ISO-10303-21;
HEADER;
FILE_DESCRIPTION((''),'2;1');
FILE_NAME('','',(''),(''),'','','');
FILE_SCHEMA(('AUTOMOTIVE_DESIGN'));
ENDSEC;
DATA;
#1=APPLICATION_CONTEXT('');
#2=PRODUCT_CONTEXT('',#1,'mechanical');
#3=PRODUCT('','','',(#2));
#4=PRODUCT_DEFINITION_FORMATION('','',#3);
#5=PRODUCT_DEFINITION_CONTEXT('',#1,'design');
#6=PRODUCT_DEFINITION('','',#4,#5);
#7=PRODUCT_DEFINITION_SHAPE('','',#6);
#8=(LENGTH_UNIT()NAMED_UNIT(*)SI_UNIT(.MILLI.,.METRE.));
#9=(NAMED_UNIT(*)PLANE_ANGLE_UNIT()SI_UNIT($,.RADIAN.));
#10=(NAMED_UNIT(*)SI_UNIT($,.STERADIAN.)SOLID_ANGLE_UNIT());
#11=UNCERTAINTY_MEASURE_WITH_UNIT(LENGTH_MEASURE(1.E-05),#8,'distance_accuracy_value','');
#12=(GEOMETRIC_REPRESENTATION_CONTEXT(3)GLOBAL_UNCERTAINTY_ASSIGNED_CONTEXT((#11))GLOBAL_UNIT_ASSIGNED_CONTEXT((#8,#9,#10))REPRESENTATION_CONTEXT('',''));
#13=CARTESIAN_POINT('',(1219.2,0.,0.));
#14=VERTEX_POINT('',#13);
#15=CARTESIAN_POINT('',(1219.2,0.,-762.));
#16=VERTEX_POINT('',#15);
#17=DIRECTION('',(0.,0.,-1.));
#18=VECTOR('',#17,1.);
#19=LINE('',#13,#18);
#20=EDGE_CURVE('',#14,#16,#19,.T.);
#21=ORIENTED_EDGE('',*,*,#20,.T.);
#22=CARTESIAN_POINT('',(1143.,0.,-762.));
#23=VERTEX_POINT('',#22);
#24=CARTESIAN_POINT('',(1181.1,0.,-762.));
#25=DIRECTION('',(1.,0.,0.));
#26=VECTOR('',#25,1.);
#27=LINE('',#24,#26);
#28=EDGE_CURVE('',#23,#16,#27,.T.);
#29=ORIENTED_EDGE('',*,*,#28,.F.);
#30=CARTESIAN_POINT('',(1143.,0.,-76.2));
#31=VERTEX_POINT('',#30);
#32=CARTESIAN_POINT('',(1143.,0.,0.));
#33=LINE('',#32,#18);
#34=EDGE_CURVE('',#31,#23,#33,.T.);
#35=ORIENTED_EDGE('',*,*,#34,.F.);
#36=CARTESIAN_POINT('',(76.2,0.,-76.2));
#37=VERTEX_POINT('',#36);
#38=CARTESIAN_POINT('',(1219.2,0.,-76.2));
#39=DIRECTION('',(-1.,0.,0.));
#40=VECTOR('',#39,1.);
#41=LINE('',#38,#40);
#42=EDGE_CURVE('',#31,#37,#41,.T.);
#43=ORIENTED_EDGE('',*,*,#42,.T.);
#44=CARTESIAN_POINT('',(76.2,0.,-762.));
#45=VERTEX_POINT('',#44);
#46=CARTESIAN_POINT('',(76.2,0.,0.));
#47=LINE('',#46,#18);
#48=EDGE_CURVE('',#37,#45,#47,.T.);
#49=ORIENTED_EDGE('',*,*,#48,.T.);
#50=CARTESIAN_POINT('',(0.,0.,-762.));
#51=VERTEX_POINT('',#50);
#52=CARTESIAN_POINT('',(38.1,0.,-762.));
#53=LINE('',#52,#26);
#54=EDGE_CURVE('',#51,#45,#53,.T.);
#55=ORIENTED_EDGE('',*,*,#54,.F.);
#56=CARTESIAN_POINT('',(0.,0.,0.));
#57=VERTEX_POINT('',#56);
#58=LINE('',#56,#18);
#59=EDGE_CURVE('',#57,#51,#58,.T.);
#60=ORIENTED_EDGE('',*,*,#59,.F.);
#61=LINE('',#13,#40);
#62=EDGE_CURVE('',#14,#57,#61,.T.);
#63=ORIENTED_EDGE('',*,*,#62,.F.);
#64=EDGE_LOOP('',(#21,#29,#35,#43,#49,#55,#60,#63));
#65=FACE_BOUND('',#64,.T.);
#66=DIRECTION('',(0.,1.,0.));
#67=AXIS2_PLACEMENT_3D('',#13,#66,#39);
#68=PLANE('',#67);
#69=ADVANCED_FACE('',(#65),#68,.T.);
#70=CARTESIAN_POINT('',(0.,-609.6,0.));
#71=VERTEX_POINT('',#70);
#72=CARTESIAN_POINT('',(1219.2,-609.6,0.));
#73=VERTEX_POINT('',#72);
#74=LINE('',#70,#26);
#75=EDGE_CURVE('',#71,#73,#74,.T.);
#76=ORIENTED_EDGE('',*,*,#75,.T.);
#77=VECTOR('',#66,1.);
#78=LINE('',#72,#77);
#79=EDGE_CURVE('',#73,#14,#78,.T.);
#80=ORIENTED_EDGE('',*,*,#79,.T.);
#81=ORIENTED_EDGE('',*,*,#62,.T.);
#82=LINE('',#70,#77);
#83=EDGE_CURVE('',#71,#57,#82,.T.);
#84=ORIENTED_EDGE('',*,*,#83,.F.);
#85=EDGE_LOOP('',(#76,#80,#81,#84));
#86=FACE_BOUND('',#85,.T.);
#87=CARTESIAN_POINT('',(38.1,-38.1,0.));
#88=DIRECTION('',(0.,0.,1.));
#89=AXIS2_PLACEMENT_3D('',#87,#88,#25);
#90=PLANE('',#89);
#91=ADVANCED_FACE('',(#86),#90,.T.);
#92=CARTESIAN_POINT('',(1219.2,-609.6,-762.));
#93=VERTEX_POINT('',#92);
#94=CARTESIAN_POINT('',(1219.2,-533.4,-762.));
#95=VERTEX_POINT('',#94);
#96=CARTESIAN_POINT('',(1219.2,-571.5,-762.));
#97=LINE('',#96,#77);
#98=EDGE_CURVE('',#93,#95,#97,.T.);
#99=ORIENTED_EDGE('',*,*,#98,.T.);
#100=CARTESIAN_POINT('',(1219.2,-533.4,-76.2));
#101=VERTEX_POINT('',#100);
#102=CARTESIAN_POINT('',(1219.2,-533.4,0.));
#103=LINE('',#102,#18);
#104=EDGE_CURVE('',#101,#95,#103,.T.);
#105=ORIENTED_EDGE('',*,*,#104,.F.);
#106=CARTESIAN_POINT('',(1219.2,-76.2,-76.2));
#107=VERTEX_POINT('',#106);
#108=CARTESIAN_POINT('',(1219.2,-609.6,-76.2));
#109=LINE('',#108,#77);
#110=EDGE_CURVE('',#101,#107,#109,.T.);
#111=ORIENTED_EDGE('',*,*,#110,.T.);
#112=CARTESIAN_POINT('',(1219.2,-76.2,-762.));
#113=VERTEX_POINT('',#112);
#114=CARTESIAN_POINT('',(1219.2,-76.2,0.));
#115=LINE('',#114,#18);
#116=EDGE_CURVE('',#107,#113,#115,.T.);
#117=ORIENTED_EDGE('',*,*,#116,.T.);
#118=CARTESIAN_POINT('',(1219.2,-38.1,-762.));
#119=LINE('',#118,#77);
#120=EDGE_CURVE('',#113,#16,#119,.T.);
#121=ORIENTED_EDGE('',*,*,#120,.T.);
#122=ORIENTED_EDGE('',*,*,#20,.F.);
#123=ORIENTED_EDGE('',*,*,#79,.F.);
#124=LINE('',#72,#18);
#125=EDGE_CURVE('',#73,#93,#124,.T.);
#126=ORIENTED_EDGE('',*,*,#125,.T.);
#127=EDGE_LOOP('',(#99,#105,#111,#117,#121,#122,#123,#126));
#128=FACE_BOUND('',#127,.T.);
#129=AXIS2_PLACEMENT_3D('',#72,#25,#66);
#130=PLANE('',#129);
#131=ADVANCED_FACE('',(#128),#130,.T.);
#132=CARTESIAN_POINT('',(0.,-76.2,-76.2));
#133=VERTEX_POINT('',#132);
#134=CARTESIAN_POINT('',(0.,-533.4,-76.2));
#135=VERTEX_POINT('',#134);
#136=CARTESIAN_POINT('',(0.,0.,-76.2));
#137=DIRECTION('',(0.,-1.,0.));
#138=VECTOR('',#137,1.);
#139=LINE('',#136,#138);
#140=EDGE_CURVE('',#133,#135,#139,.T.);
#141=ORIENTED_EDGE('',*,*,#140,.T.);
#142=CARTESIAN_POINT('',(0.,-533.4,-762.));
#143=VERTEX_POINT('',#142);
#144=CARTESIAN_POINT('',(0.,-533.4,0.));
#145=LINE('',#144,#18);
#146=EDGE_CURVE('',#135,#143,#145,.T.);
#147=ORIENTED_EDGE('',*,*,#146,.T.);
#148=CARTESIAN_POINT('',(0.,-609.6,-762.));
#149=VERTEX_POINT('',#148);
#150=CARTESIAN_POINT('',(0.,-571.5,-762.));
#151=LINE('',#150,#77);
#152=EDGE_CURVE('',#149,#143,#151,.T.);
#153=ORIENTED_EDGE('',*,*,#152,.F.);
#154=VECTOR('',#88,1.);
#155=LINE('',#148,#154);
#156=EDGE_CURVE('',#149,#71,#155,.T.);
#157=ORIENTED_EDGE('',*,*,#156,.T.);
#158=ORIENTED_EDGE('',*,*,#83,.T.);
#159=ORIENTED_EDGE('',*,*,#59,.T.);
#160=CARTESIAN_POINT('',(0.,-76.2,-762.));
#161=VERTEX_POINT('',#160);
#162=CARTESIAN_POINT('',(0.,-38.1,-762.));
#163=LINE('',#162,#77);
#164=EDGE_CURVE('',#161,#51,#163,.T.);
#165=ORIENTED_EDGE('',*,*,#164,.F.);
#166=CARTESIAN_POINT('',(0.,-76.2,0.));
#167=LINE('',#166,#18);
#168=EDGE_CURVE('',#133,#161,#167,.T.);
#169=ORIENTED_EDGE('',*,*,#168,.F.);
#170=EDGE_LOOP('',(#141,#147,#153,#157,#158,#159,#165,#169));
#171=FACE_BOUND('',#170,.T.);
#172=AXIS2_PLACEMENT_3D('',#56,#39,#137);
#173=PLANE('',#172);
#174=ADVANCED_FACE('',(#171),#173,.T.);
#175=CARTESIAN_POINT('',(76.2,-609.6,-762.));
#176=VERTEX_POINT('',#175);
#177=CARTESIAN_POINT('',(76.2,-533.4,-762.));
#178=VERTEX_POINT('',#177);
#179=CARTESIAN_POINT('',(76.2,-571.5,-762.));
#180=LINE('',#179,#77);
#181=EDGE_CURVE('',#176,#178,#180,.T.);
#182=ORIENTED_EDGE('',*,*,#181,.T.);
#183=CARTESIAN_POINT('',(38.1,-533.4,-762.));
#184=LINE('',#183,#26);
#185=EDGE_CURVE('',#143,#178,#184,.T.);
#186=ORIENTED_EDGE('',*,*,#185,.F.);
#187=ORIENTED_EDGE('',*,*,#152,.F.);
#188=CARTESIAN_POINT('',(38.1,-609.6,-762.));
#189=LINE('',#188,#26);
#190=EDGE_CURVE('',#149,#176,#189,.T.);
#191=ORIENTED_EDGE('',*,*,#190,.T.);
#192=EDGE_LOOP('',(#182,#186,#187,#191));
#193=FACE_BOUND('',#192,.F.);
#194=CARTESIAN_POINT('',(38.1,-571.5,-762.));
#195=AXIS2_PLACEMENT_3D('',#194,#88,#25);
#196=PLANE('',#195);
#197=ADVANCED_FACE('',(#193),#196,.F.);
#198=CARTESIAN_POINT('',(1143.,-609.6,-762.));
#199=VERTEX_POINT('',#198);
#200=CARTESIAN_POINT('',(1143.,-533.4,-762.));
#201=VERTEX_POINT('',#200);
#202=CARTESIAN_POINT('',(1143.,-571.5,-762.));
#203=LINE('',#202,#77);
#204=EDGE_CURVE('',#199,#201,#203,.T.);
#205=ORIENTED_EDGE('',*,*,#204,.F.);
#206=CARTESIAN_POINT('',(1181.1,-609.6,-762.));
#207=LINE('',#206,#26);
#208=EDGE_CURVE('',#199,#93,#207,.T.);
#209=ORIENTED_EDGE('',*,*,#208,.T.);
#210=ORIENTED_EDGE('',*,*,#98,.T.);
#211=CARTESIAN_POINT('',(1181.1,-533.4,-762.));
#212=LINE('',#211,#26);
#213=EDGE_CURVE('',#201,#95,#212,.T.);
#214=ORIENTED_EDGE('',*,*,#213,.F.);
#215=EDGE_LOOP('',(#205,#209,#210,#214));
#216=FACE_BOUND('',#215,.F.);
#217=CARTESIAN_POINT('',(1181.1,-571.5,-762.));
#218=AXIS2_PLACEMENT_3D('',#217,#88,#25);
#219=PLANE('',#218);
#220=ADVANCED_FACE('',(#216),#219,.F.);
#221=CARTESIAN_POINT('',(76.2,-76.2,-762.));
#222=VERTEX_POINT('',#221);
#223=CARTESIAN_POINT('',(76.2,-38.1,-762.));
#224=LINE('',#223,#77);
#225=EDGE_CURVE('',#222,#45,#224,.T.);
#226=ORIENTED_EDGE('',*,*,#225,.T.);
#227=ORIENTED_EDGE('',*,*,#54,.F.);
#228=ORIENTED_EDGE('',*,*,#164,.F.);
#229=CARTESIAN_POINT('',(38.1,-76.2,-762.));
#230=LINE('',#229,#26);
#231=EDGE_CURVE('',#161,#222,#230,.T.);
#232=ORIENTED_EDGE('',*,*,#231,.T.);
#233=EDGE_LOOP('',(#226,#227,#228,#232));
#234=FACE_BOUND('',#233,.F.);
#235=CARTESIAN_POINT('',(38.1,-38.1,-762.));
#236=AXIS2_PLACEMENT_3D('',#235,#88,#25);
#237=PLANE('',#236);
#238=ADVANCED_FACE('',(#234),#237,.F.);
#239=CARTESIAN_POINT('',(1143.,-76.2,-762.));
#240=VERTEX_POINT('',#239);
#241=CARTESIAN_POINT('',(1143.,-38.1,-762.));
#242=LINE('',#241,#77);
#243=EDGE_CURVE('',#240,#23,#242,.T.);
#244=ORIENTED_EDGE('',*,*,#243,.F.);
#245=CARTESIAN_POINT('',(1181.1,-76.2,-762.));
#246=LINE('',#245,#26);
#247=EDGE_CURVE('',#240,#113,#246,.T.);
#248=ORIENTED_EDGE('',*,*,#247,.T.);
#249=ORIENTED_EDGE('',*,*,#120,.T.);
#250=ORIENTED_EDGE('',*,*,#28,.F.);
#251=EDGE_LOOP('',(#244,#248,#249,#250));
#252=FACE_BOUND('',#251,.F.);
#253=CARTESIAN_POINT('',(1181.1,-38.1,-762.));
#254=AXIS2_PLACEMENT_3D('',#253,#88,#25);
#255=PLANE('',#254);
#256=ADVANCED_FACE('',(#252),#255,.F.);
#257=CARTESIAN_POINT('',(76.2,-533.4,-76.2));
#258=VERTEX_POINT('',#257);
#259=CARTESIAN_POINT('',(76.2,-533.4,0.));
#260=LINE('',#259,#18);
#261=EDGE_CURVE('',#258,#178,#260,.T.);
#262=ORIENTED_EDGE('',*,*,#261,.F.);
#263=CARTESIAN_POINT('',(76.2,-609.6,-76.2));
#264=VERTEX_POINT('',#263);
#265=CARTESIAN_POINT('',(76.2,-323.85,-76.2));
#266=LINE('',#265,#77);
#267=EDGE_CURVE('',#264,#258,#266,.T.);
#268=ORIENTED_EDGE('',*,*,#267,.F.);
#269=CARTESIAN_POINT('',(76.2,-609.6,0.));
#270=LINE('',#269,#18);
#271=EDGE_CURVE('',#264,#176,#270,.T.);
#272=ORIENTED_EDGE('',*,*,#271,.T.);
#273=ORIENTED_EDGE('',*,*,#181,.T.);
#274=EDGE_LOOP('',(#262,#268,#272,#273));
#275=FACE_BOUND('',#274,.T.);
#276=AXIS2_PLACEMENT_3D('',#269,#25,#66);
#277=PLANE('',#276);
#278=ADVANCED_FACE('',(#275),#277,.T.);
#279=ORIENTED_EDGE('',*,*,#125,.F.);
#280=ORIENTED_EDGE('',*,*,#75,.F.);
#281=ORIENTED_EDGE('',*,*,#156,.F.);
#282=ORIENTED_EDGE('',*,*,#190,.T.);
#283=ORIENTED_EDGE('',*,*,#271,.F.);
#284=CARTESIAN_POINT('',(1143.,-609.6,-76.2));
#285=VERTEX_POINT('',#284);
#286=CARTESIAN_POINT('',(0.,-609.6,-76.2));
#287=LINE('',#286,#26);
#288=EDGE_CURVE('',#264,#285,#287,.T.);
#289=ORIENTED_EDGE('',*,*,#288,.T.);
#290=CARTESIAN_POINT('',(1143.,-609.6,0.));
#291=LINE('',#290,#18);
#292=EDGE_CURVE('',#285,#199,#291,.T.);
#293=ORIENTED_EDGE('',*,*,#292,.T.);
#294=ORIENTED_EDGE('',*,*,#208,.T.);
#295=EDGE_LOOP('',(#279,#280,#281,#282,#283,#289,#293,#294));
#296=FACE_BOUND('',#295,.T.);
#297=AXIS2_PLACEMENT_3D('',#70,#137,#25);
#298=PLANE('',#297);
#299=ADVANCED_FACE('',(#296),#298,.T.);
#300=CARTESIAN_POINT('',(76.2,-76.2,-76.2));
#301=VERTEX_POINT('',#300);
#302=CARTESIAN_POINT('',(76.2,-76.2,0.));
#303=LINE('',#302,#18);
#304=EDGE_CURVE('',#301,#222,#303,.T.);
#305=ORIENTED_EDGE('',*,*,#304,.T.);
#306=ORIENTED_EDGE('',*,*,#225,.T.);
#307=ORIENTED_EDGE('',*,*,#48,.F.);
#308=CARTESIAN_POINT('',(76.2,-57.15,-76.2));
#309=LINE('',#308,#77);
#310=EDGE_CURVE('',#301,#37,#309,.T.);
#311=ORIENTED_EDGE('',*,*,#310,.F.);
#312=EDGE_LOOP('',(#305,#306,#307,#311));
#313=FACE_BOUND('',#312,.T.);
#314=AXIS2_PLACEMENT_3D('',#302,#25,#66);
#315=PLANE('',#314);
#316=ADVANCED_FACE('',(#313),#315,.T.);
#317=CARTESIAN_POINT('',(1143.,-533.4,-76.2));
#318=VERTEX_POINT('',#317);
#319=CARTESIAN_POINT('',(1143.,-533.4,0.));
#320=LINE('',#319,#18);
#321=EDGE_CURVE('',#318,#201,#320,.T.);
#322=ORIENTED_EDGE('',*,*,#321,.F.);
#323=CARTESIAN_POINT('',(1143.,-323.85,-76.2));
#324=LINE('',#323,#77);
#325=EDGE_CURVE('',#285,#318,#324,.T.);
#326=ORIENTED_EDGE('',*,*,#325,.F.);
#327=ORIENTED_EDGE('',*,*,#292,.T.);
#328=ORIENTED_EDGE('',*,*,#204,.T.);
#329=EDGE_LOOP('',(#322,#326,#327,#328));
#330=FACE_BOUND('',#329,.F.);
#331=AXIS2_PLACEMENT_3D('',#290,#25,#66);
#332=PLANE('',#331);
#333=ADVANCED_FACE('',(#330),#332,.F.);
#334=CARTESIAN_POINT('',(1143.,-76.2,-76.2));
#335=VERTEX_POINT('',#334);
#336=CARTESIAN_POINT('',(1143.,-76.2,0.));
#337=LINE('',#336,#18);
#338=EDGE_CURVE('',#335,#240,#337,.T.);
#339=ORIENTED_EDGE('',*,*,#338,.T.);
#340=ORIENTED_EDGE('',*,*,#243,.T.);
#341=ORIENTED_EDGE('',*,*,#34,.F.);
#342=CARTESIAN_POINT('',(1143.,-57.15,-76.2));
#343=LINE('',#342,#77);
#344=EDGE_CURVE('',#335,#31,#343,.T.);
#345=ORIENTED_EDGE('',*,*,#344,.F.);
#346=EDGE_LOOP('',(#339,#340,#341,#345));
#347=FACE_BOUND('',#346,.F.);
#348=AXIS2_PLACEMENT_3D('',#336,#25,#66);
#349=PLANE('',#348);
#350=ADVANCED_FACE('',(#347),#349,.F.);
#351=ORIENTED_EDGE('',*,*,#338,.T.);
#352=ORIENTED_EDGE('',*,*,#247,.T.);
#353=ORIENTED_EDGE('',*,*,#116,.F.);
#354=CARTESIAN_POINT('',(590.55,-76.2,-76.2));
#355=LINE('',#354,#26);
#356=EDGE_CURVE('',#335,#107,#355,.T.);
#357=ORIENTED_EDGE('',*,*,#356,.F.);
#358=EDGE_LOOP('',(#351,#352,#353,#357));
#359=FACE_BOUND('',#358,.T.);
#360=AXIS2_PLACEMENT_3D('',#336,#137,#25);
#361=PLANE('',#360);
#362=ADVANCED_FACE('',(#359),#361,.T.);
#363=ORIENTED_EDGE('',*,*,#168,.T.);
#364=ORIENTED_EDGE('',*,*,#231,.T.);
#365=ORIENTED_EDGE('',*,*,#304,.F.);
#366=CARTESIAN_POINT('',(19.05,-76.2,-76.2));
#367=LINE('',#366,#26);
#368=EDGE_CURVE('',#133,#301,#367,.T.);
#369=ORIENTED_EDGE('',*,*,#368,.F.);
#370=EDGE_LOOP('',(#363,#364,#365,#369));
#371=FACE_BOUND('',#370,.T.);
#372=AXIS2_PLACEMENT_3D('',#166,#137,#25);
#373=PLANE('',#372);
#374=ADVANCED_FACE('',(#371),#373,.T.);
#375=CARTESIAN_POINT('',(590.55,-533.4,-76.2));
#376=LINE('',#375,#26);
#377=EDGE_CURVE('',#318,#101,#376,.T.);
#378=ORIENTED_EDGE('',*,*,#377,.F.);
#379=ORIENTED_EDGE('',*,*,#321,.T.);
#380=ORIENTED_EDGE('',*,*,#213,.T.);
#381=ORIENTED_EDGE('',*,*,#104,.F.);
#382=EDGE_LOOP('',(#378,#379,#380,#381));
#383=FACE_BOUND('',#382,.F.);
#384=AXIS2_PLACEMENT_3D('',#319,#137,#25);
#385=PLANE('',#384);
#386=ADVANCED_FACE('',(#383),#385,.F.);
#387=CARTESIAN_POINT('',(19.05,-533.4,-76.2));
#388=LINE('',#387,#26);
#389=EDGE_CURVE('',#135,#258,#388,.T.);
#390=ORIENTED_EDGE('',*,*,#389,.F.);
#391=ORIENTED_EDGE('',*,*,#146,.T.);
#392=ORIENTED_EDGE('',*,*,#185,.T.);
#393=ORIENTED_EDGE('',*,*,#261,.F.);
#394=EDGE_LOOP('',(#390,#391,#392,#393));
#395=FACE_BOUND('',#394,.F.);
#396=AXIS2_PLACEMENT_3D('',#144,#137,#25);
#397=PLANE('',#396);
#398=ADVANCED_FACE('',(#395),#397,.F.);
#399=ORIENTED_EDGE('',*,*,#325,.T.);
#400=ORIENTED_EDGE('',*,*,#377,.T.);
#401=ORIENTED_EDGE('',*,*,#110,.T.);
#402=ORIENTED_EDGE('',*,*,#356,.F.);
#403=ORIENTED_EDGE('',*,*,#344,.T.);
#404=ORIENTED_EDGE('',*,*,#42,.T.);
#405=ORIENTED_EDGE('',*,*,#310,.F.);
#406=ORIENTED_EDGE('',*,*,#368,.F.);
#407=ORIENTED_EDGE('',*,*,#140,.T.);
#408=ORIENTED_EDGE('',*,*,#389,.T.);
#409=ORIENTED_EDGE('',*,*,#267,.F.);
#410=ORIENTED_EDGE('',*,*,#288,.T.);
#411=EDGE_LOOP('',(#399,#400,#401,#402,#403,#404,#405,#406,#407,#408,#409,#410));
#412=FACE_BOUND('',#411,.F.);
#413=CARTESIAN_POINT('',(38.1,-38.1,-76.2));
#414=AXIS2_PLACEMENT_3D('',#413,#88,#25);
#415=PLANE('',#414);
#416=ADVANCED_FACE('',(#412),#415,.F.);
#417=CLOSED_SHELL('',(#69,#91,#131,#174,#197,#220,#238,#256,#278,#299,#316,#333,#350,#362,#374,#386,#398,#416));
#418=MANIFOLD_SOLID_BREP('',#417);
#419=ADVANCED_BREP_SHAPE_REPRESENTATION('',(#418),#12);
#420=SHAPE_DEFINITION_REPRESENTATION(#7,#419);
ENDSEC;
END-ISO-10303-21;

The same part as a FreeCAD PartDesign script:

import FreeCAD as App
import Part
import Sketcher

V = App.Vector
Q = App.Units.Quantity

doc = App.newDocument("Part")
body = doc.addObject("PartDesign::Body", "Body")

sketch1 = body.newObject("Sketcher::SketchObject", "Sketch")
sketch1.AttachmentSupport = (doc.getObject("XY_Plane"), [""])
sketch1.MapMode = "FlatFace"
sketch1.addGeometry([
    Part.LineSegment(V(0, 0, 0), V(0, -610, 0)),
    Part.LineSegment(V(0, -610, 0), V(1219, -610, 0)),
    Part.LineSegment(V(1219, -610, 0), V(1219, 0, 0)),
    Part.LineSegment(V(1219, 0, 0), V(0, 0, 0)),
], False)
sketch1.addConstraint([
    Sketcher.Constraint("Coincident", 0, 2, 1, 1),
    Sketcher.Constraint("Coincident", 1, 2, 2, 1),
    Sketcher.Constraint("Coincident", 2, 2, 3, 1),
    Sketcher.Constraint("Coincident", 3, 2, 0, 1),
    Sketcher.Constraint("Vertical", 0),
    Sketcher.Constraint("Horizontal", 1),
    Sketcher.Constraint("Vertical", 2),
    Sketcher.Constraint("Horizontal", 3),
    Sketcher.Constraint("Coincident", 3, 2, -1, 1),
    Sketcher.Constraint("DistanceX", 1, 1, 1, 2, Q("48 in")),
    Sketcher.Constraint("DistanceY", 0, 2, 0, 1, Q("24 in")),
])
pad1 = body.newObject("PartDesign::Pad", "Pad")
pad1.Profile = sketch1
pad1.Length = Q("3 in")
pad1.Reversed = True

sketch2 = body.newObject("Sketcher::SketchObject", "Sketch001")
sketch2.AttachmentSupport = (doc.getObject("XY_Plane"), [""])
sketch2.MapMode = "FlatFace"
sketch2.addGeometry([
    Part.LineSegment(V(0, 0, 0), V(0, -76, 0)),
    Part.LineSegment(V(0, -76, 0), V(76, -76, 0)),
    Part.LineSegment(V(76, -76, 0), V(76, 0, 0)),
    Part.LineSegment(V(76, 0, 0), V(0, 0, 0)),
    Part.LineSegment(V(0, -533, 0), V(0, -610, 0)),
    Part.LineSegment(V(0, -610, 0), V(76, -610, 0)),
    Part.LineSegment(V(76, -610, 0), V(76, -533, 0)),
    Part.LineSegment(V(76, -533, 0), V(0, -533, 0)),
    Part.LineSegment(V(1143, 0, 0), V(1143, -76, 0)),
    Part.LineSegment(V(1143, -76, 0), V(1219, -76, 0)),
    Part.LineSegment(V(1219, -76, 0), V(1219, 0, 0)),
    Part.LineSegment(V(1219, 0, 0), V(1143, 0, 0)),
    Part.LineSegment(V(1143, -533, 0), V(1143, -610, 0)),
    Part.LineSegment(V(1143, -610, 0), V(1219, -610, 0)),
    Part.LineSegment(V(1219, -610, 0), V(1219, -533, 0)),
    Part.LineSegment(V(1219, -533, 0), V(1143, -533, 0)),
], False)
sketch2.addConstraint([
    Sketcher.Constraint("Coincident", 0, 2, 1, 1),
    Sketcher.Constraint("Coincident", 1, 2, 2, 1),
    Sketcher.Constraint("Coincident", 2, 2, 3, 1),
    Sketcher.Constraint("Coincident", 3, 2, 0, 1),
    Sketcher.Constraint("Coincident", 4, 2, 5, 1),
    Sketcher.Constraint("Coincident", 5, 2, 6, 1),
    Sketcher.Constraint("Coincident", 6, 2, 7, 1),
    Sketcher.Constraint("Coincident", 7, 2, 4, 1),
    Sketcher.Constraint("Coincident", 8, 2, 9, 1),
    Sketcher.Constraint("Coincident", 9, 2, 10, 1),
    Sketcher.Constraint("Coincident", 10, 2, 11, 1),
    Sketcher.Constraint("Coincident", 11, 2, 8, 1),
    Sketcher.Constraint("Coincident", 12, 2, 13, 1),
    Sketcher.Constraint("Coincident", 13, 2, 14, 1),
    Sketcher.Constraint("Coincident", 14, 2, 15, 1),
    Sketcher.Constraint("Coincident", 15, 2, 12, 1),
    Sketcher.Constraint("Vertical", 0),
    Sketcher.Constraint("Horizontal", 1),
    Sketcher.Constraint("Vertical", 2),
    Sketcher.Constraint("Horizontal", 3),
    Sketcher.Constraint("Vertical", 4),
    Sketcher.Constraint("Horizontal", 5),
    Sketcher.Constraint("Vertical", 6),
    Sketcher.Constraint("Horizontal", 7),
    Sketcher.Constraint("Vertical", 8),
    Sketcher.Constraint("Horizontal", 9),
    Sketcher.Constraint("Vertical", 10),
    Sketcher.Constraint("Horizontal", 11),
    Sketcher.Constraint("Vertical", 12),
    Sketcher.Constraint("Horizontal", 13),
    Sketcher.Constraint("Vertical", 14),
    Sketcher.Constraint("Horizontal", 15),
    Sketcher.Constraint("Coincident", 3, 2, -1, 1),
    Sketcher.Constraint("PointOnObject", 4, 2, -2),
    Sketcher.Constraint("PointOnObject", 10, 2, -1),
    Sketcher.Constraint("Horizontal", 1, 2, 8, 2),
    Sketcher.Constraint("Horizontal", 5, 2, 12, 2),
    Sketcher.Constraint("Horizontal", 7, 2, 14, 2),
    Sketcher.Constraint("Vertical", 2, 2, 5, 2),
    Sketcher.Constraint("Vertical", 11, 2, 12, 2),
    Sketcher.Constraint("Vertical", 10, 2, 13, 2),
    Sketcher.Constraint("Equal", 7, 9),
    Sketcher.Constraint("Equal", 15, 0),
    Sketcher.Constraint("Equal", 2, 4),
    Sketcher.Constraint("DistanceX", 1, 1, 1, 2, Q("3 in")),
    Sketcher.Constraint("DistanceY", 4, 2, -1, 1, Q("24 in")),
    Sketcher.Constraint("DistanceX", -1, 1, 8, 2, Q("45 in")),
])
pad2 = body.newObject("PartDesign::Pad", "Pad001")
pad2.Profile = sketch2
pad2.Length = Q("30 in")
pad2.Reversed = True

doc.recompute()
